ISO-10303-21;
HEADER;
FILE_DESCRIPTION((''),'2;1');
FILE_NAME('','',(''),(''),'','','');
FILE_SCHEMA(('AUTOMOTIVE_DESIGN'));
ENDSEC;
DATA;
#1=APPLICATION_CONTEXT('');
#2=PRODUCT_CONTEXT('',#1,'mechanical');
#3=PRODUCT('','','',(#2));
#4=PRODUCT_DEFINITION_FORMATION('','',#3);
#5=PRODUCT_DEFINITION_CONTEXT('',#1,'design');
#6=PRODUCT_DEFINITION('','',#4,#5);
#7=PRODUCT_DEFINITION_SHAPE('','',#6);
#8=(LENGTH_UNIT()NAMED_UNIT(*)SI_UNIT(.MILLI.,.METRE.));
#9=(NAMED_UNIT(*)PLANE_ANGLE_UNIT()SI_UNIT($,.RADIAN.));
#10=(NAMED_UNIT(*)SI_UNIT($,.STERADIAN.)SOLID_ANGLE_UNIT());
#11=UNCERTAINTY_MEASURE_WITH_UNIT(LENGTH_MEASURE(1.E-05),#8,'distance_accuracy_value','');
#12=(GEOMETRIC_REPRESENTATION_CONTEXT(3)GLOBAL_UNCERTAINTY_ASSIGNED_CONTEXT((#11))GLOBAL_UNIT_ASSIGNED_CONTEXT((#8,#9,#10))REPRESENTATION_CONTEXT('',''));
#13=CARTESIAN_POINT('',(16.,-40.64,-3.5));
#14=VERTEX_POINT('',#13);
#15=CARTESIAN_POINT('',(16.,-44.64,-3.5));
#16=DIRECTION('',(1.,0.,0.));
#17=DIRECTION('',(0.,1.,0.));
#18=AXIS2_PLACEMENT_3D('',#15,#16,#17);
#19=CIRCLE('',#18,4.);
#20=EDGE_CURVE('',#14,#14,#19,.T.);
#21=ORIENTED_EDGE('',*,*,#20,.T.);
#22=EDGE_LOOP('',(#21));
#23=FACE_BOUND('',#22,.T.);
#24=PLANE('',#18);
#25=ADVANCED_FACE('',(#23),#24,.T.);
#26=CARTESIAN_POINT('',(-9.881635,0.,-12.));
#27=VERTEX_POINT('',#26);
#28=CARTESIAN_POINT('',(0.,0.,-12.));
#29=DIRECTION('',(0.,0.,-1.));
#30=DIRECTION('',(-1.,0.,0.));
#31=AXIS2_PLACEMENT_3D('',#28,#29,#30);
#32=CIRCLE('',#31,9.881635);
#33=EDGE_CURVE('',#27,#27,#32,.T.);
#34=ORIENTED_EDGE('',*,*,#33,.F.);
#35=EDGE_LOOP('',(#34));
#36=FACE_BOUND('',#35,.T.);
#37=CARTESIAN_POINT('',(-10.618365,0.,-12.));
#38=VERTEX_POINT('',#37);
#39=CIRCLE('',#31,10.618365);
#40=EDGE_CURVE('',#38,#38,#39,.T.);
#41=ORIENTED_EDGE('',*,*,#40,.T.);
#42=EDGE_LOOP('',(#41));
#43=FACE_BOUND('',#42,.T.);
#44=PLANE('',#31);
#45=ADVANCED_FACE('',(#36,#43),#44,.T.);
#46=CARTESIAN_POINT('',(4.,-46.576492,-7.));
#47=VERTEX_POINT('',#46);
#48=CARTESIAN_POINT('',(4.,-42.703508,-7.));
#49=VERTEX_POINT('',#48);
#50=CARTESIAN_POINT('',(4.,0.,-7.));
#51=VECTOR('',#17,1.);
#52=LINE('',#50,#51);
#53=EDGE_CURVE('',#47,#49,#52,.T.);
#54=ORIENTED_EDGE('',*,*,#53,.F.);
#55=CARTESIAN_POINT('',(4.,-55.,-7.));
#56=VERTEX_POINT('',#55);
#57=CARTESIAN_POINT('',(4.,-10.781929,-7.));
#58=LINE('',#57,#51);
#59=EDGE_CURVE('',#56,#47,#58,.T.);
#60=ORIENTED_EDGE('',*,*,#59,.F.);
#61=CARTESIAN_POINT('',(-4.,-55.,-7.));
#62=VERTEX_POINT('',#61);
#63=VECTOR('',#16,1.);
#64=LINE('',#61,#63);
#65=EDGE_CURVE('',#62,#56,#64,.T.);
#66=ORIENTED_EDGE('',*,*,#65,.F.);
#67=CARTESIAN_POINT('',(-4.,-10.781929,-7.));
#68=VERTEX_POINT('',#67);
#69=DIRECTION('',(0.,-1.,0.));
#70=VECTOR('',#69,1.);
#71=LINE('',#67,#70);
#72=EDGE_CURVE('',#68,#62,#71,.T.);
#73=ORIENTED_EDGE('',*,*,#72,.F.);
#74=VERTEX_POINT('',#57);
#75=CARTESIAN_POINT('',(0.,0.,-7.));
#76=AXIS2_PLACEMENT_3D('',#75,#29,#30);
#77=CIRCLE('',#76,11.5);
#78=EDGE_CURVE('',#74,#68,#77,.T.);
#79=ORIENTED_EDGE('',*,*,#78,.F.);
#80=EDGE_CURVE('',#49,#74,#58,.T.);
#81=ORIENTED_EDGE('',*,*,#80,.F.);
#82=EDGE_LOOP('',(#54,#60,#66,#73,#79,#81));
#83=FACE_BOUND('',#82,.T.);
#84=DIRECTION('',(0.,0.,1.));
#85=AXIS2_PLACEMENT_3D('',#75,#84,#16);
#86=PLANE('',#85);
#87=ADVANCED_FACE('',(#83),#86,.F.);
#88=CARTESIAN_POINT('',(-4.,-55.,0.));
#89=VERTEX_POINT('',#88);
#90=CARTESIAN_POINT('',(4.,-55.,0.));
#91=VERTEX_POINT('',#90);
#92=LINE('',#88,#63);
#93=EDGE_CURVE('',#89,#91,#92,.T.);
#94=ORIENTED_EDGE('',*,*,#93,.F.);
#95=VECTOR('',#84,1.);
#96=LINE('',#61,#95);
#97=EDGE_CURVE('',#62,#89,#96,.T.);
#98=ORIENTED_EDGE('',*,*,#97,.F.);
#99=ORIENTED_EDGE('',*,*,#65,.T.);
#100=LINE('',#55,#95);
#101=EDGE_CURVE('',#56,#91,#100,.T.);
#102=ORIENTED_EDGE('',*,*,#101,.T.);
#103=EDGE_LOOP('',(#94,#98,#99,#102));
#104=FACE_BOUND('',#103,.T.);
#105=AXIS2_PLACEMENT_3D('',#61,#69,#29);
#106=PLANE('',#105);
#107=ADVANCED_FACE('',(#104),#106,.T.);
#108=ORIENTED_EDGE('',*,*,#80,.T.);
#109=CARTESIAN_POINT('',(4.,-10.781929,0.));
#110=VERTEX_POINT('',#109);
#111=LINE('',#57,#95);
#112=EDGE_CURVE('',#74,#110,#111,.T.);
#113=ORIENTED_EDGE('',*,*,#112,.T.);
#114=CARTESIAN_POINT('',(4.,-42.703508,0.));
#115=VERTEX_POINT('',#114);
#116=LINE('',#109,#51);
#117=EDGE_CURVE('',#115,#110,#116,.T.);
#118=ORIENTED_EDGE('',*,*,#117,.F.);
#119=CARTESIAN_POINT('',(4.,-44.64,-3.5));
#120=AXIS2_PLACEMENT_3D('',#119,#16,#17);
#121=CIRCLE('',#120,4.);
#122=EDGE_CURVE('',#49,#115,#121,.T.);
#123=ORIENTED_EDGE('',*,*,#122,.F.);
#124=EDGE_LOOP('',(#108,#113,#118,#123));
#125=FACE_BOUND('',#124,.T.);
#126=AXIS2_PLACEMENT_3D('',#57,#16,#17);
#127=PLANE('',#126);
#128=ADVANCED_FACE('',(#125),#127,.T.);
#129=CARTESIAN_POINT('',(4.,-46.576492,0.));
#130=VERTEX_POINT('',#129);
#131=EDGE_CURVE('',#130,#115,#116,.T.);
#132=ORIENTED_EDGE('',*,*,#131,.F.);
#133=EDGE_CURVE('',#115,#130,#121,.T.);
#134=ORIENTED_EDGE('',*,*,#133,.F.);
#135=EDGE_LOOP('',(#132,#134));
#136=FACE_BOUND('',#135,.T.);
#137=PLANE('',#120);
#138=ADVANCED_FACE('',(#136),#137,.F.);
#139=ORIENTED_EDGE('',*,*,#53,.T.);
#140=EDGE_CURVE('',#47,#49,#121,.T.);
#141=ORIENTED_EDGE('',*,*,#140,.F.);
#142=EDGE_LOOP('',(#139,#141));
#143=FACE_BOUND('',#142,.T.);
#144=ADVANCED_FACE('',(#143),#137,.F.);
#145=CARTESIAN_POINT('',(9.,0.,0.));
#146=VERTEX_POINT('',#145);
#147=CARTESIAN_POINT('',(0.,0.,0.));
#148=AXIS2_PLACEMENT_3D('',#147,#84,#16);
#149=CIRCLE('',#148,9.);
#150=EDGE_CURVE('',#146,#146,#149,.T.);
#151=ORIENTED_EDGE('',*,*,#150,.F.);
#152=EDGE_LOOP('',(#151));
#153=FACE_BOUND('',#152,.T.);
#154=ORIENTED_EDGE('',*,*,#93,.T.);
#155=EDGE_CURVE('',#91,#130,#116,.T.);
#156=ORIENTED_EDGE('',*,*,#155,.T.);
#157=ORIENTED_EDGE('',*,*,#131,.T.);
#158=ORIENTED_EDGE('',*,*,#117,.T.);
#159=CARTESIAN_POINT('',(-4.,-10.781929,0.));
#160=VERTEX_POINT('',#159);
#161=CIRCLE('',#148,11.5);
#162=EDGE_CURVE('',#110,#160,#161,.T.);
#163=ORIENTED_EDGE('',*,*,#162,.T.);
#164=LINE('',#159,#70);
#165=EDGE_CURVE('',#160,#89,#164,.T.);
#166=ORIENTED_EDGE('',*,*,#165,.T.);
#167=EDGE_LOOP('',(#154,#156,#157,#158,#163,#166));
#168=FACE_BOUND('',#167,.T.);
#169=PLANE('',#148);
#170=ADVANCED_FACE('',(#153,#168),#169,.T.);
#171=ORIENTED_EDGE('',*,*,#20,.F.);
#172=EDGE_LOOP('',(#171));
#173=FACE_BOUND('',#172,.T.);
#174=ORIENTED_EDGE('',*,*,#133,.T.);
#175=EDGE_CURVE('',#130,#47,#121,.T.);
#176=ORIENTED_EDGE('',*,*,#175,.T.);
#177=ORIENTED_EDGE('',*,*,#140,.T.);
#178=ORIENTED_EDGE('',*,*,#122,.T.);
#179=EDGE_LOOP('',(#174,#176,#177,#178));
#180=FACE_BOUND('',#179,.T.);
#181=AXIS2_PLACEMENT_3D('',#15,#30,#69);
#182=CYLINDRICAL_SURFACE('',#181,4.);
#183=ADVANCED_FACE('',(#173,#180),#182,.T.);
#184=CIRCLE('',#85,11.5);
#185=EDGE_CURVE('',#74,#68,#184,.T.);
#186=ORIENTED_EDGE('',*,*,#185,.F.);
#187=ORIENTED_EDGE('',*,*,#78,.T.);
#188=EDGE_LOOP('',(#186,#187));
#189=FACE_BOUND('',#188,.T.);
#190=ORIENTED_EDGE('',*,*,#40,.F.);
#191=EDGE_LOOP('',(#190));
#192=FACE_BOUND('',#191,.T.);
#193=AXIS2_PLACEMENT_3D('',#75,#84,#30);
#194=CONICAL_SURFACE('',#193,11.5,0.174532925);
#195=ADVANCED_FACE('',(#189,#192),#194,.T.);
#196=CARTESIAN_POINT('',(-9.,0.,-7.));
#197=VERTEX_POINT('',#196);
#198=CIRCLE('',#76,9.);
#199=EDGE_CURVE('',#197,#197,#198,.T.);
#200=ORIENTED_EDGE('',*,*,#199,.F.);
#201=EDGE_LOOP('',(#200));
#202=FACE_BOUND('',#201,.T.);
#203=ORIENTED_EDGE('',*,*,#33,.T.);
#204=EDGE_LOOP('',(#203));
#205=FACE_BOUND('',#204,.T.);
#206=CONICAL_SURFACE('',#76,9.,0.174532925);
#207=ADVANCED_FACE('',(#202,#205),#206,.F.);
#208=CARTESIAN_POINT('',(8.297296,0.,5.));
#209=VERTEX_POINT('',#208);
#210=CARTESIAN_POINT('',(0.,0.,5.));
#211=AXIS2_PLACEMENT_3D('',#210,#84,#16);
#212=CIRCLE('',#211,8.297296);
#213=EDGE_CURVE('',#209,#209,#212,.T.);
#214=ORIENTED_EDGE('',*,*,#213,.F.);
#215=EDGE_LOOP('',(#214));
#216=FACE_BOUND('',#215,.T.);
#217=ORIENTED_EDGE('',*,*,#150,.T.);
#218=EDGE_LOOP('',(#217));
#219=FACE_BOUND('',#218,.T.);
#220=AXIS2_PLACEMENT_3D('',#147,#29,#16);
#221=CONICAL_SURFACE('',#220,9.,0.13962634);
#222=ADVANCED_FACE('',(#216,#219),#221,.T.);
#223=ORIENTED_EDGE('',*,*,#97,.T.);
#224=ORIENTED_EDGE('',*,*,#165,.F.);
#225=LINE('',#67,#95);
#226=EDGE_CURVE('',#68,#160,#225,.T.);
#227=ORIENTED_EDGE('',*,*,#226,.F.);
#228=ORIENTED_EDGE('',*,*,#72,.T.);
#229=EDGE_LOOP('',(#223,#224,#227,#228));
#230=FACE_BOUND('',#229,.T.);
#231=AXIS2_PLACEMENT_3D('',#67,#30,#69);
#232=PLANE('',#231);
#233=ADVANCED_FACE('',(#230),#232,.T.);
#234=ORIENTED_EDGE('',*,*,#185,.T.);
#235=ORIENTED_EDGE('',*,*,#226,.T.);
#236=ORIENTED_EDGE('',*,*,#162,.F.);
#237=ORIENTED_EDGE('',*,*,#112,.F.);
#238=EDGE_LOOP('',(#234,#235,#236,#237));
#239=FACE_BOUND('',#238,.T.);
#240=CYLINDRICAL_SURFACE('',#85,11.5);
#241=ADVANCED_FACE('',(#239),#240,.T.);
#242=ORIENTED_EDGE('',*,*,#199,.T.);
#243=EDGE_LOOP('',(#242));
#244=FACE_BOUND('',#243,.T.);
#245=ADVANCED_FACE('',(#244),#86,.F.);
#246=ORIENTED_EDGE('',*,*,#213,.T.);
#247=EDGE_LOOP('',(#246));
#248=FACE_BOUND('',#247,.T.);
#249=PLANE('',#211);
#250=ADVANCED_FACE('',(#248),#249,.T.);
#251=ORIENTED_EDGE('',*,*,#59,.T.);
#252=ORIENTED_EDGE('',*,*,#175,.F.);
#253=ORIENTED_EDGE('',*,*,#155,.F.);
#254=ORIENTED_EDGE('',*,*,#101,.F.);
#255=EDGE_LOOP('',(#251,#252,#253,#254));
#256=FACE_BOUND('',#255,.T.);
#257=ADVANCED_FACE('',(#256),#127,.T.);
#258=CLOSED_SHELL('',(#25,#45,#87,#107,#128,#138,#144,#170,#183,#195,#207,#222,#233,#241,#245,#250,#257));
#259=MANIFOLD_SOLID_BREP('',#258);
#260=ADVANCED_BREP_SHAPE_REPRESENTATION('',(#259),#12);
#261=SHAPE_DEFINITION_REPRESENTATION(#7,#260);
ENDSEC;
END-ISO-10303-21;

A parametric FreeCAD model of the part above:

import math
import FreeCAD as App
import Part
import Sketcher

V = App.Vector
Q = App.Units.Quantity


def faces_at(feature, points):
    """Names of the faces that lie closest to the given points."""
    faces = feature.Shape.Faces
    near = lambda p: min(range(len(faces)), key=lambda i: faces[i].distToShape(Part.Vertex(*p))[0])
    return sorted({f"Face{near(p) + 1}" for p in points})

doc = App.newDocument("Part")
body = doc.addObject("PartDesign::Body", "Body")

# Sketch on XY plane
sketch1 = body.newObject("Sketcher::SketchObject", "Sketch")
sketch1.AttachmentSupport = (doc.getObject("XY_Plane"), [""])
sketch1.MapMode = "FlatFace"
sketch1.addGeometry([
    Part.LineSegment(V(-4, -11, 0), V(-4, -55, 0)),
    Part.LineSegment(V(-4, -55, 0), V(4, -55, 0)),
    Part.LineSegment(V(4, -55, 0), V(4, -11, 0)),
    Part.ArcOfCircle(Part.Circle(V(0, 0, 0), V(0, 0, 1), 12), math.radians(-70), math.radians(250)),
], False)
sketch1.addConstraint([
    Sketcher.Constraint("Coincident", 0, 2, 1, 1),
    Sketcher.Constraint("Coincident", 1, 2, 2, 1),
    Sketcher.Constraint("Coincident", 2, 2, 3, 1),
    Sketcher.Constraint("Coincident", 3, 2, 0, 1),
    Sketcher.Constraint("Vertical", 0),
    Sketcher.Constraint("Horizontal", 1),
    Sketcher.Constraint("Vertical", 2),
    Sketcher.Constraint("Coincident", 3, 3, -1, 1),
    Sketcher.Constraint("Horizontal", 2, 2, 3, 2),
    Sketcher.Constraint("Radius", 3, Q("11.5 mm")),
    Sketcher.Constraint("DistanceX", 1, 1, 1, 2, Q("8 mm")),
    Sketcher.Constraint("DistanceY", 0, 2, -1, 1, Q("55 mm")),
])
pad1 = body.newObject("PartDesign::Pad", "Pad")
pad1.Profile = sketch1
pad1.Length = 7
pad1.Reversed = True

# Sketch on XY plane
sketch2 = body.newObject("Sketcher::SketchObject", "Sketch001")
sketch2.AttachmentSupport = (doc.getObject("XY_Plane"), [""])
sketch2.MapMode = "FlatFace"
sketch2.addGeometry(Part.Circle(V(0, 0, 0), V(0, 0, 1), 9), False)
sketch2.addConstraint([
    Sketcher.Constraint("Coincident", 0, 3, -1, 1),
    Sketcher.Constraint("Diameter", 0, Q("18 mm")),
])
pad2 = body.newObject("PartDesign::Pad", "Pad001")
pad2.Profile = sketch2
pad2.Length = 5
pad2.TaperAngle = -8

# Sketch on XY plane
sketch3 = body.newObject("Sketcher::SketchObject", "Sketch002")
sketch3.AttachmentSupport = (doc.getObject("XY_Plane"), [""])
sketch3.MapMode = "FlatFace"
sketch3.AttachmentOffset = App.Placement(V(0, 0, -7), App.Rotation())
sketch3.addGeometry(Part.Circle(V(0, 0, 0), V(0, 0, 1), 12), False)
sketch3.addConstraint([
    Sketcher.Constraint("Coincident", 0, 3, -1, 1),
    Sketcher.Constraint("Diameter", 0, Q("23 mm")),
])
pad3 = body.newObject("PartDesign::Pad", "Pad002")
pad3.Profile = sketch3
pad3.Length = 5
pad3.Reversed = True
pad3.TaperAngle = -10

# Sketch on YZ plane
sketch4 = body.newObject("Sketcher::SketchObject", "Sketch003")
sketch4.AttachmentSupport = (doc.getObject("YZ_Plane"), [""])
sketch4.MapMode = "FlatFace"
sketch4.AttachmentOffset = App.Placement(V(0, 0, 4), App.Rotation())
sketch4.addGeometry(Part.Circle(V(-44.6, -3.5, 0), V(0, 0, 1), 4), False)
sketch4.addConstraint([
    Sketcher.Constraint("Diameter", 0, Q("8 mm")),
    Sketcher.Constraint("DistanceY", 0, 3, -1, 1, Q("3.5 mm")),
    Sketcher.Constraint("DistanceX", 0, 3, -1, 1, Q("44.64 mm")),
])
pad4 = body.newObject("PartDesign::Pad", "Pad003")
pad4.Profile = sketch4
pad4.Length = 12

# Sketch on XY plane
sketch5 = body.newObject("Sketcher::SketchObject", "Sketch004")
sketch5.AttachmentSupport = (doc.getObject("XY_Plane"), [""])
sketch5.MapMode = "FlatFace"
sketch5.AttachmentOffset = App.Placement(V(0, 0, -12), App.Rotation())
sketch5.addGeometry(Part.Circle(V(0, 0, 0), V(0, 0, 1), 9), False)
sketch5.addConstraint([
    Sketcher.Constraint("Coincident", 0, 3, -1, 1),
    Sketcher.Constraint("Diameter", 0, Q("18 mm")),
])
pocket1 = body.newObject("PartDesign::Pocket", "Pocket")
pocket1.Profile = sketch5
pocket1.Length = 5
pocket1.Reversed = True
body2 = doc.addObject("PartDesign::Body", "Body001")

# Sketch on XY plane
sketch6 = body2.newObject("Sketcher::SketchObject", "Sketch005")
sketch6.AttachmentSupport = (doc.getObject("XY_Plane001"), [""])
sketch6.MapMode = "FlatFace"
sketch6.AttachmentOffset = App.Placement(V(0, 0, -7), App.Rotation())
sketch6.addGeometry(Part.Circle(V(0, 0, 0), V(0, 0, 1), 9), False)
sketch6.addConstraint([
    Sketcher.Constraint("Coincident", 0, 3, -1, 1),
    Sketcher.Constraint("Diameter", 0, Q("18 mm")),
])
pad5 = body2.newObject("PartDesign::Pad", "Pad004")
pad5.Profile = sketch6
pad5.Length = 5
pad5.Reversed = True
doc.recompute()

datumplane = body2.newObject("PartDesign::Plane", "DatumPlane")
datumplane.AttachmentSupport = (doc.getObject("XY_Plane001"), [""])
datumplane.MapMode = "FlatFace"
datumplane.AttachmentOffset = App.Placement(V(0, 0, -7), App.Rotation())
draft = body2.newObject("PartDesign::Draft", "Draft")
draft.Base = (pad5, faces_at(pad5, [(9, 0, -9.5)]))
draft.NeutralPlane = (datumplane, [""])
draft.Angle = 10
draft.Reversed = False
doc.recompute()

boolean = body.newObject("PartDesign::Boolean", "Boolean")
boolean.Type = "Cut"
boolean.addObjects([body2])

doc.recompute()
